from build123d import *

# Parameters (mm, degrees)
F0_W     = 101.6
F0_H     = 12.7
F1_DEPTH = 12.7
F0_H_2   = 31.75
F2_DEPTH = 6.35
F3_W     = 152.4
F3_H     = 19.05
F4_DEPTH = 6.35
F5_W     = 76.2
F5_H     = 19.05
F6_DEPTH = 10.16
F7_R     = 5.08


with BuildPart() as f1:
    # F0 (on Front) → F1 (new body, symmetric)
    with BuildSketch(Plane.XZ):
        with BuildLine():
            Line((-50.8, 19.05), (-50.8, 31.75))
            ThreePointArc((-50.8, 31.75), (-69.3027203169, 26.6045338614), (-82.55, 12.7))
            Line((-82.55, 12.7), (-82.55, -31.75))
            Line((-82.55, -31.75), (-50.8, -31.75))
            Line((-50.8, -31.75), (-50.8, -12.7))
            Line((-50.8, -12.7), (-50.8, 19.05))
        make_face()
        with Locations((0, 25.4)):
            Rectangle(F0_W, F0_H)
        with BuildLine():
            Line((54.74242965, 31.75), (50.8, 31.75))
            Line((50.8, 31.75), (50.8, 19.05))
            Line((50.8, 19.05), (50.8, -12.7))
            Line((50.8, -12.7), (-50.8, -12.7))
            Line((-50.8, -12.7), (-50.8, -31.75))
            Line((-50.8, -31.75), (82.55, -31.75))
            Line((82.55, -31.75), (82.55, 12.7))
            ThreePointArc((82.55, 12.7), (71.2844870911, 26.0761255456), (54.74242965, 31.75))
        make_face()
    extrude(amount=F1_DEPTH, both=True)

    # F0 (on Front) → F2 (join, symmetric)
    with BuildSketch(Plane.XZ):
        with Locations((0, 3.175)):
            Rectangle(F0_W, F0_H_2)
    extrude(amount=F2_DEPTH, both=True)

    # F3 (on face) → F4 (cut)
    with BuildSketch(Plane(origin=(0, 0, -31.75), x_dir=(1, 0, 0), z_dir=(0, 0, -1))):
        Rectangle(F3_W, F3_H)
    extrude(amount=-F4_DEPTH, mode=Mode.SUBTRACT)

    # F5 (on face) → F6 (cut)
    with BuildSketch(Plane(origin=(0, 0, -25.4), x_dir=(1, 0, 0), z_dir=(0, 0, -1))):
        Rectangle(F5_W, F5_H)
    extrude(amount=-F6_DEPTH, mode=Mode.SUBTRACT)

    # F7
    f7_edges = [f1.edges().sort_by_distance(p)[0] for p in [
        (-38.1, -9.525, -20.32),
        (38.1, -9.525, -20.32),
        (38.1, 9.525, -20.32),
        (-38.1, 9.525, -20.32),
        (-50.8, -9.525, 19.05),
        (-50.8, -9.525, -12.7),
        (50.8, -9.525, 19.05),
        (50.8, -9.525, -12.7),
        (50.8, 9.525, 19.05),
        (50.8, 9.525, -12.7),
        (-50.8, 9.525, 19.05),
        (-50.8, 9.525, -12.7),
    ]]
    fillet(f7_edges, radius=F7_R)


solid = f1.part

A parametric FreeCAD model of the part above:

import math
import FreeCAD as App
import Part
import Sketcher

V = App.Vector
Q = App.Units.Quantity


def edges_at(feature, points):
    """Names of the edges that pass closest to the given points."""
    edges = feature.Shape.Edges
    near = lambda p: min(range(len(edges)), key=lambda i: edges[i].distToShape(Part.Vertex(*p))[0])
    return sorted({f"Edge{near(p) + 1}" for p in points})

doc = App.newDocument("Part")
body = doc.addObject("PartDesign::Body", "Body")

# Sketch on XZ plane
sketch1 = body.newObject("Sketcher::SketchObject", "Sketch")
sketch1.AttachmentSupport = (doc.getObject("XZ_Plane"), [""])
sketch1.MapMode = "FlatFace"
sketch1.addGeometry([
    Part.ArcOfCircle(Part.Circle(V(-51, -4, 0), V(0, 0, 1), 36), math.radians(90), math.radians(152)),  # 0
    Part.LineSegment(V(-83, 13, 0), V(-83, -32, 0)),  # 1
    Part.LineSegment(V(-83, -32, 0), V(83, -32, 0)),  # 2
    Part.LineSegment(V(83, -32, 0), V(83, 13, 0)),  # 3
    Part.ArcOfCircle(Part.Circle(V(53, -1, 0), V(0, 0, 1), 33), math.radians(25), math.radians(87)),  # 4
    Part.LineSegment(V(55, 32, 0), V(-51, 32, 0)),  # 5
    Part.LineSegment(V(-51, -13, 0), V(-51, 19, 0)),  # 6
    Part.LineSegment(V(-51, 19, 0), V(51, 19, 0)),  # 7
    Part.LineSegment(V(51, 19, 0), V(51, -13, 0)),  # 8
    Part.LineSegment(V(51, -13, 0), V(-51, -13, 0)),  # 9
], False)
sketch1.addConstraint([
    Sketcher.Constraint("Coincident", 0, 2, 1, 1),
    Sketcher.Constraint("Coincident", 1, 2, 2, 1),
    Sketcher.Constraint("Coincident", 2, 2, 3, 1),
    Sketcher.Constraint("Coincident", 3, 2, 4, 1),
    Sketcher.Constraint("Coincident", 4, 2, 5, 1),
    Sketcher.Constraint("Coincident", 5, 2, 0, 1),
    Sketcher.Constraint("Coincident", 6, 2, 7, 1),
    Sketcher.Constraint("Coincident", 7, 2, 8, 1),
    Sketcher.Constraint("Coincident", 8, 2, 9, 1),
    Sketcher.Constraint("Coincident", 9, 2, 6, 1),
    Sketcher.Constraint("Vertical", 1),
    Sketcher.Constraint("Horizontal", 2),
    Sketcher.Constraint("Vertical", 3),
    Sketcher.Constraint("Horizontal", 5),
    Sketcher.Constraint("Vertical", 6),
    Sketcher.Constraint("Horizontal", 7),
    Sketcher.Constraint("Vertical", 8),
    Sketcher.Constraint("Horizontal", 9),
    Sketcher.Constraint("Symmetric", 0, 2, 3, 2, -2),
    Sketcher.Constraint("Vertical", 5, 2, 6, 2),
    Sketcher.Constraint("DistanceX", 7, 1, 7, 2, Q("4 in")),
    Sketcher.Constraint("DistanceX", 2, 1, 2, 2, Q("6.5 in")),
    Sketcher.Constraint("DistanceX", 5, 2, -1, 1, Q("2 in")),
    Sketcher.Constraint("DistanceY", 1, 2, 6, 2, Q("2 in")),
    Sketcher.Constraint("DistanceY", 8, 2, 3, 2, Q("1 in")),
    Sketcher.Constraint("DistanceY", 1, 2, 1, 1, Q("1.75 in")),
    Sketcher.Constraint("DistanceY", -1, 1, 0, 2, Q("0.5 in")),
    Sketcher.Constraint("DistanceY", 2, 2, 4, 2, Q("2.5 in")),
    Sketcher.Constraint("Radius", 0, 36.107279),
    Sketcher.Constraint("Radius", 4, 32.757339),
    Sketcher.Constraint("DistanceX", 5, 2, 5, 1, 105.54243),
])
pad1 = body.newObject("PartDesign::Pad", "Pad")
pad1.Profile = sketch1
pad1.Length = Q("1 in")
pad1.Midplane = True

# Sketch on XZ plane
sketch2 = body.newObject("Sketcher::SketchObject", "Sketch001")
sketch2.AttachmentSupport = (doc.getObject("XZ_Plane"), [""])
sketch2.MapMode = "FlatFace"
sketch2.addGeometry([
    Part.LineSegment(V(-51, 19, 0), V(-51, -13, 0)),
    Part.LineSegment(V(-51, -13, 0), V(51, -13, 0)),
    Part.LineSegment(V(51, -13, 0), V(51, 19, 0)),
    Part.LineSegment(V(51, 19, 0), V(-51, 19, 0)),
], False)
sketch2.addConstraint([
    Sketcher.Constraint("Coincident", 0, 2, 1, 1),
    Sketcher.Constraint("Coincident", 1, 2, 2, 1),
    Sketcher.Constraint("Coincident", 2, 2, 3, 1),
    Sketcher.Constraint("Coincident", 3, 2, 0, 1),
    Sketcher.Constraint("Vertical", 0),
    Sketcher.Constraint("Horizontal", 1),
    Sketcher.Constraint("Vertical", 2),
    Sketcher.Constraint("Horizontal", 3),
    Sketcher.Constraint("DistanceX", 1, 1, 1, 2, Q("4 in")),
    Sketcher.Constraint("DistanceX", 0, 2, -1, 1, Q("2 in")),
    Sketcher.Constraint("DistanceY", 0, 2, 0, 1, Q("1.25 in")),
    Sketcher.Constraint("DistanceY", 0, 2, -1, 1, Q("0.5 in")),
])
pad2 = body.newObject("PartDesign::Pad", "Pad001")
pad2.Profile = sketch2
pad2.Length = Q("0.5 in")
pad2.Midplane = True

# Sketch on XY plane
sketch3 = body.newObject("Sketcher::SketchObject", "Sketch002")
sketch3.AttachmentSupport = (doc.getObject("XY_Plane"), [""])
sketch3.MapMode = "FlatFace"
sketch3.AttachmentOffset = App.Placement(V(0, 0, -1.25 * 25.4), App.Rotation())
sketch3.addGeometry([
    Part.LineSegment(V(-76, -10, 0), V(-76, 10, 0)),
    Part.LineSegment(V(-76, 10, 0), V(76, 10, 0)),
    Part.LineSegment(V(76, 10, 0), V(76, -10, 0)),
    Part.LineSegment(V(76, -10, 0), V(-76, -10, 0)),
], False)
sketch3.addConstraint([
    Sketcher.Constraint("Coincident", 0, 2, 1, 1),
    Sketcher.Constraint("Coincident", 1, 2, 2, 1),
    Sketcher.Constraint("Coincident", 2, 2, 3, 1),
    Sketcher.Constraint("Coincident", 3, 2, 0, 1),
    Sketcher.Constraint("Vertical", 0),
    Sketcher.Constraint("Horizontal", 1),
    Sketcher.Constraint("Vertical", 2),
    Sketcher.Constraint("Horizontal", 3),
    Sketcher.Constraint("Symmetric", 0, 2, 2, 2, -1, 1),
    Sketcher.Constraint("DistanceX", 1, 1, 1, 2, Q("6 in")),
    Sketcher.Constraint("DistanceY", 0, 1, 0, 2, Q("0.75 in")),
])
pocket1 = body.newObject("PartDesign::Pocket", "Pocket")
pocket1.Profile = sketch3
pocket1.Length = Q("0.25 in")
pocket1.Reversed = True

# Sketch on XY plane
sketch4 = body.newObject("Sketcher::SketchObject", "Sketch003")
sketch4.AttachmentSupport = (doc.getObject("XY_Plane"), [""])
sketch4.MapMode = "FlatFace"
sketch4.AttachmentOffset = App.Placement(V(0, 0, -1 * 25.4), App.Rotation())
sketch4.addGeometry([
    Part.LineSegment(V(-38, -10, 0), V(-38, 10, 0)),
    Part.LineSegment(V(-38, 10, 0), V(38, 10, 0)),
    Part.LineSegment(V(38, 10, 0), V(38, -10, 0)),
    Part.LineSegment(V(38, -10, 0), V(-38, -10, 0)),
], False)
sketch4.addConstraint([
    Sketcher.Constraint("Coincident", 0, 2, 1, 1),
    Sketcher.Constraint("Coincident", 1, 2, 2, 1),
    Sketcher.Constraint("Coincident", 2, 2, 3, 1),
    Sketcher.Constraint("Coincident", 3, 2, 0, 1),
    Sketcher.Constraint("Vertical", 0),
    Sketcher.Constraint("Horizontal", 1),
    Sketcher.Constraint("Vertical", 2),
    Sketcher.Constraint("Horizontal", 3),
    Sketcher.Constraint("Symmetric", 0, 2, 2, 2, -1, 1),
    Sketcher.Constraint("DistanceX", 1, 1, 1, 2, Q("3 in")),
    Sketcher.Constraint("DistanceY", 0, 1, 0, 2, Q("0.75 in")),
])
pocket2 = body.newObject("PartDesign::Pocket", "Pocket001")
pocket2.Profile = sketch4
pocket2.Length = Q("0.4 in")
pocket2.Reversed = True
doc.recompute()

fillet = body.newObject("PartDesign::Fillet", "Fillet")
fillet.Base = (pocket2, edges_at(pocket2, [
    (-38.1, -9.525, -20.32),
    (38.1, -9.525, -20.32),
    (38.1, 9.525, -20.32),
    (-38.1, 9.525, -20.32),
    (-50.8, -9.525, 19.05),
    (-50.8, -9.525, -12.7),
    (50.8, -9.525, 19.05),
    (50.8, -9.525, -12.7),
    (50.8, 9.525, 19.05),
    (50.8, 9.525, -12.7),
    (-50.8, 9.525, 19.05),
    (-50.8, 9.525, -12.7),
]))
fillet.Radius = Q("0.2 in")

doc.recompute()
